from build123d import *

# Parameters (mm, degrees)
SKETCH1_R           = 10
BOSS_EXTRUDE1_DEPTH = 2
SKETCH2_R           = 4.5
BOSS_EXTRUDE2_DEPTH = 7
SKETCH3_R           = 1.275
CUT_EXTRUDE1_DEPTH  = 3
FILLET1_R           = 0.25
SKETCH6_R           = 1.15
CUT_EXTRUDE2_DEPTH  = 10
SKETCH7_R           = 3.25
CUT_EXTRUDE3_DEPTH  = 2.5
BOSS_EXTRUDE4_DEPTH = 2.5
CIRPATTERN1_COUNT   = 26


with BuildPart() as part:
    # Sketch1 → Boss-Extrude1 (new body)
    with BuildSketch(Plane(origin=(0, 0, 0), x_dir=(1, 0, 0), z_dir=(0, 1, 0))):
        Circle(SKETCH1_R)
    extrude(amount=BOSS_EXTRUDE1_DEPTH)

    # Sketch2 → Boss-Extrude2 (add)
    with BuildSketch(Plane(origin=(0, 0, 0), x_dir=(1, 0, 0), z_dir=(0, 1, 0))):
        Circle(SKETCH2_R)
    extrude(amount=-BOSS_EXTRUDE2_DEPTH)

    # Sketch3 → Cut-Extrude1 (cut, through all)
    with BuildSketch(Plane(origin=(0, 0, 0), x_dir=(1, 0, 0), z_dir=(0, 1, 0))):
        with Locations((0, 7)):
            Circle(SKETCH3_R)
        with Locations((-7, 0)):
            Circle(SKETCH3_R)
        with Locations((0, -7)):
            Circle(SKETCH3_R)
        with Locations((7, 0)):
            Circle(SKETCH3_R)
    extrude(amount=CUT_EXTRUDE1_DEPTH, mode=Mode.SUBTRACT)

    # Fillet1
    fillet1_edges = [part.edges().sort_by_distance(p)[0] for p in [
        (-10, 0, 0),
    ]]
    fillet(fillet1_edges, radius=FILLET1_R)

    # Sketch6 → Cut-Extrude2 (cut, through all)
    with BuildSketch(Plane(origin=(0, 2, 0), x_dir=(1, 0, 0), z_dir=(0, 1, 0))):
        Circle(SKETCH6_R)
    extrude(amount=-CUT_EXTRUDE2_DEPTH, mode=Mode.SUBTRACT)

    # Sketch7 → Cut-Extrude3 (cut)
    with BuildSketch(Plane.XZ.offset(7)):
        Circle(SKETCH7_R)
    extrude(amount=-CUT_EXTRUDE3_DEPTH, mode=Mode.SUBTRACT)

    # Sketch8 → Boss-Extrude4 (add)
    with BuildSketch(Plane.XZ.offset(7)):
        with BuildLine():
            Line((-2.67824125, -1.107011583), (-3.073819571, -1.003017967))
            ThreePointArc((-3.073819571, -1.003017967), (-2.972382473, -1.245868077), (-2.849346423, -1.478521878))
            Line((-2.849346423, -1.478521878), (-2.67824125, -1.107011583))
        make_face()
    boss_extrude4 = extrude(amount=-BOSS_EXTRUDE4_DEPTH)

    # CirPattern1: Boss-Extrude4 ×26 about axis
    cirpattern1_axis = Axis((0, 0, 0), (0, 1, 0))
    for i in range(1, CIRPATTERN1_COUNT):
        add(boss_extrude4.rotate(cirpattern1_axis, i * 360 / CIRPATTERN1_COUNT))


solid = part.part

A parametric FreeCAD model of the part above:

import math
import FreeCAD as App
import Part
import Sketcher
from FreeCAD import Vector
Q = App.Units.Quantity


def edges_at(feature, points):
    """Names of the edges that pass closest to the given points."""
    edges = feature.Shape.Edges
    near = lambda p: min(range(len(edges)), key=lambda i: edges[i].distToShape(Part.Vertex(*p))[0])
    return sorted({f"Edge{near(p) + 1}" for p in points})

doc = App.newDocument("Part")
params = doc.addObject("Spreadsheet::Sheet", "Params")
for row, (alias, value) in enumerate([
    ("sketch1_diameter", "20 mm"),
    ("pad1_length", "2 mm"),
    ("sketch2_diameter", "9 mm"),
    ("pad2_length", "7 mm"),
    ("sketch3_diameter", "2.55 mm"),
    ("fillet_radius", "0.25 mm"),
    ("sketch4_diameter", "2.3 mm"),
    ("sketch5_diameter", "6.5 mm"),
    ("pocket3_length", "2.5 mm"),
    ("sketch6_radius", "2.9 mm"),
    ("pad3_length", "2.5 mm"),
], start=1):
    params.set(f"A{row}", alias)
    params.set(f"B{row}", "=" + value)
    params.setAlias(f"B{row}", alias)

body = doc.addObject("PartDesign::Body", "Body")

# Sketch on XZ plane
sketch1 = doc.addObject("Sketcher::SketchObject", "Sketch")
body.addObject(sketch1)
sketch1.AttachmentSupport = (doc.XZ_Plane, [""])
sketch1.MapMode = "FlatFace"
sketch1.addGeometry(Part.Circle(Vector(0, 0, 0), Vector(0, 0, 1), 10), False)
sketch1.addConstraint([
    Sketcher.Constraint("Coincident", 0, 3, -1, 1),
    Sketcher.Constraint("Diameter", 0, Q("20 mm")),
])
sketch1.setExpression("Constraints[1]", "Params.sketch1_diameter")
pad1 = doc.addObject("PartDesign::Pad", "Pad")
body.addObject(pad1)
pad1.Profile = sketch1
pad1.setExpression("Length", "Params.pad1_length")
pad1.Reversed = True

# Sketch on XZ plane
sketch2 = doc.addObject("Sketcher::SketchObject", "Sketch001")
body.addObject(sketch2)
sketch2.AttachmentSupport = (doc.XZ_Plane, [""])
sketch2.MapMode = "FlatFace"
sketch2.addGeometry(Part.Circle(Vector(0, 0, 0), Vector(0, 0, 1), 4.5), False)
sketch2.addConstraint([
    Sketcher.Constraint("Coincident", 0, 3, -1, 1),
    Sketcher.Constraint("Diameter", 0, Q("9 mm")),
])
sketch2.setExpression("Constraints[1]", "Params.sketch2_diameter")
pad2 = doc.addObject("PartDesign::Pad", "Pad001")
body.addObject(pad2)
pad2.Profile = sketch2
pad2.setExpression("Length", "Params.pad2_length")

# Sketch on XZ plane
sketch3 = doc.addObject("Sketcher::SketchObject", "Sketch002")
body.addObject(sketch3)
sketch3.AttachmentSupport = (doc.XZ_Plane, [""])
sketch3.MapMode = "FlatFace"
sketch3.addGeometry([
    Part.Circle(Vector(0, -7, 0), Vector(0, 0, 1), 1.275),
    Part.Circle(Vector(-7, 0, 0), Vector(0, 0, 1), 1.275),
    Part.Circle(Vector(0, 7, 0), Vector(0, 0, 1), 1.275),
    Part.Circle(Vector(7, 0, 0), Vector(0, 0, 1), 1.275),
], False)
sketch3.addConstraint([
    Sketcher.Constraint("Equal", 0, 1),
    Sketcher.Constraint("Equal", 1, 2),
    Sketcher.Constraint("Equal", 2, 3),
    Sketcher.Constraint("Symmetric", 0, 3, 2, 3, -1, 1),
    Sketcher.Constraint("Symmetric", 1, 3, 3, 3, -1, 1),
    Sketcher.Constraint("PointOnObject", 0, 3, -2),
    Sketcher.Constraint("PointOnObject", 1, 3, -1),
    Sketcher.Constraint("Diameter", 0, Q("2.55 mm")),
    Sketcher.Constraint("DistanceY", 0, 3, -1, 1, Q("7 mm")),
    Sketcher.Constraint("DistanceX", 1, 3, -1, 1, Q("7 mm")),
])
sketch3.setExpression("Constraints[7]", "Params.sketch3_diameter")
pocket1 = doc.addObject("PartDesign::Pocket", "Pocket")
body.addObject(pocket1)
pocket1.Profile = sketch3
pocket1.Type = "ThroughAll"
doc.recompute()

fillet = doc.addObject("PartDesign::Fillet", "Fillet")
body.addObject(fillet)
fillet.Base = (pocket1, edges_at(pocket1, [(-10, 0, 0)]))
fillet.setExpression("Radius", "Params.fillet_radius")

# Sketch on XZ plane
sketch4 = doc.addObject("Sketcher::SketchObject", "Sketch003")
body.addObject(sketch4)
sketch4.AttachmentSupport = (doc.XZ_Plane, [""])
sketch4.MapMode = "FlatFace"
sketch4.AttachmentOffset = App.Placement(Vector(0, 0, -2), App.Rotation())
sketch4.addGeometry(Part.Circle(Vector(0, 0, 0), Vector(0, 0, 1), 1.15), False)
sketch4.addConstraint([
    Sketcher.Constraint("Coincident", 0, 3, -1, 1),
    Sketcher.Constraint("Diameter", 0, Q("2.3 mm")),
])
sketch4.setExpression("Constraints[1]", "Params.sketch4_diameter")
pocket2 = doc.addObject("PartDesign::Pocket", "Pocket001")
body.addObject(pocket2)
pocket2.Profile = sketch4
pocket2.Type = "ThroughAll"
pocket2.Reversed = True

# Sketch on XZ plane
sketch5 = doc.addObject("Sketcher::SketchObject", "Sketch004")
body.addObject(sketch5)
sketch5.AttachmentSupport = (doc.XZ_Plane, [""])
sketch5.MapMode = "FlatFace"
sketch5.AttachmentOffset = App.Placement(Vector(0, 0, 7), App.Rotation())
sketch5.addGeometry(Part.Circle(Vector(0, 0, 0), Vector(0, 0, 1), 3.25), False)
sketch5.addConstraint([
    Sketcher.Constraint("Coincident", 0, 3, -1, 1),
    Sketcher.Constraint("Diameter", 0, Q("6.5 mm")),
])
sketch5.setExpression("Constraints[1]", "Params.sketch5_diameter")
pocket3 = doc.addObject("PartDesign::Pocket", "Pocket002")
body.addObject(pocket3)
pocket3.Profile = sketch5
pocket3.setExpression("Length", "Params.pocket3_length")

# Sketch on XZ plane
sketch6 = doc.addObject("Sketcher::SketchObject", "Sketch005")
body.addObject(sketch6)
sketch6.AttachmentSupport = (doc.XZ_Plane, [""])
sketch6.MapMode = "FlatFace"
sketch6.AttachmentOffset = App.Placement(Vector(0, 0, 7), App.Rotation())
sketch6.addGeometry([
    Part.LineSegment(Vector(-2.678241, -1.107012, 0), Vector(-3.07382, -1.003018, 0)),
    Part.ArcOfCircle(Part.Circle(Vector(-0.349912, -0.007867, 0), Vector(0, 0, 1), 2.9), math.radians(-159.930761), math.radians(-149.527661)),
    Part.LineSegment(Vector(-2.849346, -1.478522, 0), Vector(-2.678241, -1.107012, 0)),
], False)
sketch6.addConstraint([
    Sketcher.Constraint("Coincident", 0, 2, 1, 1),
    Sketcher.Constraint("Coincident", 1, 2, 2, 1),
    Sketcher.Constraint("Coincident", 2, 2, 0, 1),
    Sketcher.Constraint("Equal", 0, 2),
    Sketcher.Constraint("Radius", 1, Q("2.9 mm")),
    Sketcher.Constraint("Distance", 0, Q("0.409019 mm")),
    Sketcher.Constraint("DistanceX", 1, 3, -1, 1, Q("0.349912 mm")),
    Sketcher.Constraint("DistanceX", 0, 2, -1, 1, Q("3.07382 mm")),
    Sketcher.Constraint("DistanceY", 1, 2, -1, 1, Q("1.478522 mm")),
    Sketcher.Constraint("DistanceX", 2, 2, -1, 1, Q("2.678241 mm")),
])
sketch6.setExpression("Constraints[4]", "Params.sketch6_radius")
pad3 = doc.addObject("PartDesign::Pad", "Pad002")
body.addObject(pad3)
pad3.Profile = sketch6
pad3.setExpression("Length", "Params.pad3_length")
pad3.Reversed = True
doc.recompute()

polarpattern = doc.addObject("PartDesign::PolarPattern", "PolarPattern")
body.addObject(polarpattern)
polarpattern.Originals = [pad3]
polarpattern.Axis = (doc.Y_Axis, [""])
polarpattern.Angle = 360
polarpattern.Occurrences = 26
body.Tip = polarpattern

doc.recompute()
